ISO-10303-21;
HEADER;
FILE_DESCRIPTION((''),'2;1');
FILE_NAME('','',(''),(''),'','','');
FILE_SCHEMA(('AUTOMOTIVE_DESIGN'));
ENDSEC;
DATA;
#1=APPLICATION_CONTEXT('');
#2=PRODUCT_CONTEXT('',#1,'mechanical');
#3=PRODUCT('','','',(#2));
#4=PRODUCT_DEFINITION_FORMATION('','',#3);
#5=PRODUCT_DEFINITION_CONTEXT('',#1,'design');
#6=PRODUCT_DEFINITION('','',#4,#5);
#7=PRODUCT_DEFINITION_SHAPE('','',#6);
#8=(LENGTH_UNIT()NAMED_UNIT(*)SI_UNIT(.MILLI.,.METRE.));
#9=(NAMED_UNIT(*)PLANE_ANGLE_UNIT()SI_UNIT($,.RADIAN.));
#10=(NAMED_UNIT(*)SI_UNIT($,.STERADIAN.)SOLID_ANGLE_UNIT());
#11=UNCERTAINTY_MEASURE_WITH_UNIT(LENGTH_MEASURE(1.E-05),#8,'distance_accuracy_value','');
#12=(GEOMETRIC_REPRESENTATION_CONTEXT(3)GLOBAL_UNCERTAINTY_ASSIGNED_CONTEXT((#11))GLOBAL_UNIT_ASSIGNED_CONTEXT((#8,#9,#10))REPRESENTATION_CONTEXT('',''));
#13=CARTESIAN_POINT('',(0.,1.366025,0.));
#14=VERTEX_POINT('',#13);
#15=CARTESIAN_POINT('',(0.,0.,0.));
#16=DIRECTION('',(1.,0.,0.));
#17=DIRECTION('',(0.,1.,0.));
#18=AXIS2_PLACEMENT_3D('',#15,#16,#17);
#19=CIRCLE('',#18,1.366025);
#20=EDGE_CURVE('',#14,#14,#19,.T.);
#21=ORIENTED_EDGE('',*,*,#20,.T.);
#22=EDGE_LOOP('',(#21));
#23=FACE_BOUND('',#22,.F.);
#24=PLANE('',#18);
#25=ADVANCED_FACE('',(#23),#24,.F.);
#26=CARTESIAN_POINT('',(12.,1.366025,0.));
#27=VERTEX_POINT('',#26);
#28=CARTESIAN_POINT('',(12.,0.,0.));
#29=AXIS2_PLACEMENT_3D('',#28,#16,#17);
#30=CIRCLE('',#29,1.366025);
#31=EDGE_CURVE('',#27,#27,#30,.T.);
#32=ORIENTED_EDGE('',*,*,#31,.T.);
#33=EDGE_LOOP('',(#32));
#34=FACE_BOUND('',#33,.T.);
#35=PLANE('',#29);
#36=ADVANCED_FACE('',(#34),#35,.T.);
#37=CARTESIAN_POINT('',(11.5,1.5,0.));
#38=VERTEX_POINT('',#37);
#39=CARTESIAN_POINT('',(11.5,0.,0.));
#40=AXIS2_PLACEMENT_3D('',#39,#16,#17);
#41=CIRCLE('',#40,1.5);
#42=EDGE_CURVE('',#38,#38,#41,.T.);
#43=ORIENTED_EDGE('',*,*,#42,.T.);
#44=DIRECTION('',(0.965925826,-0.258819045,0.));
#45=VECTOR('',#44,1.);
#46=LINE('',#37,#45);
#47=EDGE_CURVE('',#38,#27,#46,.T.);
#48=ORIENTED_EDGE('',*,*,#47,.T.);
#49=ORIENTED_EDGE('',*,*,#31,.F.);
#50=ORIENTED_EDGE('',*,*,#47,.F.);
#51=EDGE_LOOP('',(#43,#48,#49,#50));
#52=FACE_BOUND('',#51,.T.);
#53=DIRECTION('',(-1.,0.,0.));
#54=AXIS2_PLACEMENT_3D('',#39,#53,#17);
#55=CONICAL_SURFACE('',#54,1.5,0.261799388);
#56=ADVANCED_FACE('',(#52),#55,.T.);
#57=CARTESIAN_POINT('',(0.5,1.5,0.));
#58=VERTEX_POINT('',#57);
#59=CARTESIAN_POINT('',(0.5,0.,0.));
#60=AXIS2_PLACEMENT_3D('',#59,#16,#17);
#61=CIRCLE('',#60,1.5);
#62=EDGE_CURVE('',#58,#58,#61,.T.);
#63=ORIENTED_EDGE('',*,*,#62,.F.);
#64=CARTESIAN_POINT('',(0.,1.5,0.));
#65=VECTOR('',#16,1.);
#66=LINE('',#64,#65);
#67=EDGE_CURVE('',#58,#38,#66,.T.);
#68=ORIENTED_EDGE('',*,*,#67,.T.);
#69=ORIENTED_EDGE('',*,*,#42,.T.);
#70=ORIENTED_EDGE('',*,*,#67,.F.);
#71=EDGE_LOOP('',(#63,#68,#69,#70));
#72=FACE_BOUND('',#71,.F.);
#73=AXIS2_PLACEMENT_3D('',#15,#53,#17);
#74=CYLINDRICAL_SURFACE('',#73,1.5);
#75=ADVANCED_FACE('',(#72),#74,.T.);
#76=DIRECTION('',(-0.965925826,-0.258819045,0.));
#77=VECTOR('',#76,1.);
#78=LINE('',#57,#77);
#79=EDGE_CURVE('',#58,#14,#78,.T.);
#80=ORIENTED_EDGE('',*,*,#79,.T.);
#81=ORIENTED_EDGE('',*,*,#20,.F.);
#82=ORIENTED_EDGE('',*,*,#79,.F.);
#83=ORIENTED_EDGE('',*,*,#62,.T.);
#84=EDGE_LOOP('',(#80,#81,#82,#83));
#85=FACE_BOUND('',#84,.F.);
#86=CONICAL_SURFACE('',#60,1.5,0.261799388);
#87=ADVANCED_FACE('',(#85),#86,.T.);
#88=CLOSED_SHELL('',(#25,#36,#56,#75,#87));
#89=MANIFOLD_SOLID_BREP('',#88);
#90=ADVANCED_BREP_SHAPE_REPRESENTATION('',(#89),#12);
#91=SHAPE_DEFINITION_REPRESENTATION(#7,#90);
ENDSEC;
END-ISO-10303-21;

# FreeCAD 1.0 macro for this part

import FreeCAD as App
import Part
import Sketcher
from FreeCAD import Vector
Q = App.Units.Quantity


def edges_at(feature, points):
    """Names of the edges that pass closest to the given points."""
    edges = feature.Shape.Edges
    near = lambda p: min(range(len(edges)), key=lambda i: edges[i].distToShape(Part.Vertex(*p))[0])
    return sorted({f"Edge{near(p) + 1}" for p in points})

doc = App.newDocument("Part")
body = doc.addObject("PartDesign::Body", "Body")

# Sketch on YZ plane
sketch1 = body.newObject("Sketcher::SketchObject", "Sketch")
sketch1.AttachmentSupport = (doc.getObject("YZ_Plane"), [""])
sketch1.MapMode = "FlatFace"
sketch1.addGeometry(Part.Circle(Vector(0, 0, 0), Vector(0, 0, 1), 1.5), False)
sketch1.addConstraint(Sketcher.Constraint("Coincident", 0, 3, -1, 1))
sketch1.addConstraint(Sketcher.Constraint("Diameter", 0, Q("3 mm")))
pad1 = body.newObject("PartDesign::Pad", "Pad")
pad1.Profile = sketch1
pad1.Length = 12
doc.recompute()

chamfer = body.newObject("PartDesign::Chamfer", "Chamfer")
chamfer.Base = (pad1, edges_at(pad1, [(0, -1.5, 0)]))
chamfer.ChamferType = "Distance and Angle"
chamfer.Size = 0.5
chamfer.Angle = 15
doc.recompute()

chamfer2 = body.newObject("PartDesign::Chamfer", "Chamfer001")
chamfer2.Base = (chamfer, edges_at(chamfer, [(12, -1.5, 0)]))
chamfer2.ChamferType = "Distance and Angle"
chamfer2.Size = 0.5
chamfer2.Angle = 15

doc.recompute()
